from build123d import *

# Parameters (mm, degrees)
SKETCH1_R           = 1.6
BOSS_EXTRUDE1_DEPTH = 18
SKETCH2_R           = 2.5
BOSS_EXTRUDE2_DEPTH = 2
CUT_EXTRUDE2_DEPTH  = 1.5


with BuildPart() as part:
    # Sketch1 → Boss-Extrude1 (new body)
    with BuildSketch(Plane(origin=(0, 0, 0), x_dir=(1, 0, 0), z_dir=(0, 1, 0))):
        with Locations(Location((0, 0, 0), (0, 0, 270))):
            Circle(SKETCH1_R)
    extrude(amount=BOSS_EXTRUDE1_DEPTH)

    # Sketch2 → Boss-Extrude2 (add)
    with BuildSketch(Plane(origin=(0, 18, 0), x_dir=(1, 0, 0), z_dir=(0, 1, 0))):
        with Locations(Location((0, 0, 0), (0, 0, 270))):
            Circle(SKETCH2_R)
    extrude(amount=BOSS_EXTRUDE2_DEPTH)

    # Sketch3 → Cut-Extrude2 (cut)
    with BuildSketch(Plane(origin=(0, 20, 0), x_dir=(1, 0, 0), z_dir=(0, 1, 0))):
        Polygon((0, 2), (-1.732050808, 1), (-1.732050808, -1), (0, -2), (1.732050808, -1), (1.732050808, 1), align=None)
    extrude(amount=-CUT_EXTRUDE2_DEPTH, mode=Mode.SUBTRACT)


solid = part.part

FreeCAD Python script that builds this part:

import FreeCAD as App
import Part
import Sketcher
Q = App.Units.Quantity


def add_polygon(sketch, points):
    """Adds a closed chain of lines whose ends are joined by coincident constraints."""
    first, n = sketch.GeometryCount, len(points)
    for a, b in zip(points, points[1:] + points[:1]):
        sketch.addGeometry(Part.LineSegment(App.Vector(*a, 0), App.Vector(*b, 0)), False)
    for i in range(n):
        sketch.addConstraint(Sketcher.Constraint("Coincident", first + i, 2, first + (i + 1) % n, 1))

doc = App.newDocument("Part")
body = doc.addObject("PartDesign::Body", "Body")

# Sketch on XZ plane
sketch1 = body.newObject("Sketcher::SketchObject", "Sketch")
sketch1.AttachmentSupport = (doc.getObject("XZ_Plane"), [""])
sketch1.MapMode = "FlatFace"
sketch1.addGeometry(Part.Circle(App.Vector(0, 0, 0), App.Vector(0, 0, 1), 1.6), False)
sketch1.addConstraint([
    Sketcher.Constraint("Coincident", 0, 3, -1, 1),
    Sketcher.Constraint("Diameter", 0, Q("3.2 mm")),
])
pad1 = body.newObject("PartDesign::Pad", "Pad")
pad1.Profile = sketch1
pad1.Length = 18
pad1.Reversed = True

# Sketch on XZ plane
sketch2 = body.newObject("Sketcher::SketchObject", "Sketch001")
sketch2.AttachmentSupport = (doc.getObject("XZ_Plane"), [""])
sketch2.MapMode = "FlatFace"
sketch2.AttachmentOffset = App.Placement(App.Vector(0, 0, -18), App.Rotation())
sketch2.addGeometry(Part.Circle(App.Vector(0, 0, 0), App.Vector(0, 0, 1), 2.5), False)
sketch2.addConstraint([
    Sketcher.Constraint("Coincident", 0, 3, -1, 1),
    Sketcher.Constraint("Diameter", 0, Q("5 mm")),
])
pad2 = body.newObject("PartDesign::Pad", "Pad001")
pad2.Profile = sketch2
pad2.Length = 2
pad2.Reversed = True

# Sketch on XZ plane
sketch3 = body.newObject("Sketcher::SketchObject", "Sketch002")
sketch3.AttachmentSupport = (doc.getObject("XZ_Plane"), [""])
sketch3.MapMode = "FlatFace"
sketch3.AttachmentOffset = App.Placement(App.Vector(0, 0, -20), App.Rotation())
add_polygon(sketch3, [(0, -2), (-1.7, -1), (-1.7, 1), (0, 2), (1.7, 1), (1.7, -1)])  # lines 0-5
sketch3.addConstraint([
    Sketcher.Constraint("Vertical", 1),
    Sketcher.Constraint("Vertical", 4),
    Sketcher.Constraint("Symmetric", 0, 2, 3, 2, -1, 1),
    Sketcher.Constraint("Symmetric", 2, 2, 5, 2, -1, 1),
    Sketcher.Constraint("PointOnObject", 2, 2, -2),
    Sketcher.Constraint("Parallel", 2, 5),
    Sketcher.Constraint("Horizontal", 1, 2, 3, 2),
    Sketcher.Constraint("DistanceY", 1, 1, 1, 2, Q("2 mm")),
    Sketcher.Constraint("Angle", 0, Q("150 deg")),
    Sketcher.Constraint("Distance", 0, Q("2 mm")),
])
pocket1 = body.newObject("PartDesign::Pocket", "Pocket")
pocket1.Profile = sketch3
pocket1.Length = 1.5
pocket1.Reversed = True

doc.recompute()
